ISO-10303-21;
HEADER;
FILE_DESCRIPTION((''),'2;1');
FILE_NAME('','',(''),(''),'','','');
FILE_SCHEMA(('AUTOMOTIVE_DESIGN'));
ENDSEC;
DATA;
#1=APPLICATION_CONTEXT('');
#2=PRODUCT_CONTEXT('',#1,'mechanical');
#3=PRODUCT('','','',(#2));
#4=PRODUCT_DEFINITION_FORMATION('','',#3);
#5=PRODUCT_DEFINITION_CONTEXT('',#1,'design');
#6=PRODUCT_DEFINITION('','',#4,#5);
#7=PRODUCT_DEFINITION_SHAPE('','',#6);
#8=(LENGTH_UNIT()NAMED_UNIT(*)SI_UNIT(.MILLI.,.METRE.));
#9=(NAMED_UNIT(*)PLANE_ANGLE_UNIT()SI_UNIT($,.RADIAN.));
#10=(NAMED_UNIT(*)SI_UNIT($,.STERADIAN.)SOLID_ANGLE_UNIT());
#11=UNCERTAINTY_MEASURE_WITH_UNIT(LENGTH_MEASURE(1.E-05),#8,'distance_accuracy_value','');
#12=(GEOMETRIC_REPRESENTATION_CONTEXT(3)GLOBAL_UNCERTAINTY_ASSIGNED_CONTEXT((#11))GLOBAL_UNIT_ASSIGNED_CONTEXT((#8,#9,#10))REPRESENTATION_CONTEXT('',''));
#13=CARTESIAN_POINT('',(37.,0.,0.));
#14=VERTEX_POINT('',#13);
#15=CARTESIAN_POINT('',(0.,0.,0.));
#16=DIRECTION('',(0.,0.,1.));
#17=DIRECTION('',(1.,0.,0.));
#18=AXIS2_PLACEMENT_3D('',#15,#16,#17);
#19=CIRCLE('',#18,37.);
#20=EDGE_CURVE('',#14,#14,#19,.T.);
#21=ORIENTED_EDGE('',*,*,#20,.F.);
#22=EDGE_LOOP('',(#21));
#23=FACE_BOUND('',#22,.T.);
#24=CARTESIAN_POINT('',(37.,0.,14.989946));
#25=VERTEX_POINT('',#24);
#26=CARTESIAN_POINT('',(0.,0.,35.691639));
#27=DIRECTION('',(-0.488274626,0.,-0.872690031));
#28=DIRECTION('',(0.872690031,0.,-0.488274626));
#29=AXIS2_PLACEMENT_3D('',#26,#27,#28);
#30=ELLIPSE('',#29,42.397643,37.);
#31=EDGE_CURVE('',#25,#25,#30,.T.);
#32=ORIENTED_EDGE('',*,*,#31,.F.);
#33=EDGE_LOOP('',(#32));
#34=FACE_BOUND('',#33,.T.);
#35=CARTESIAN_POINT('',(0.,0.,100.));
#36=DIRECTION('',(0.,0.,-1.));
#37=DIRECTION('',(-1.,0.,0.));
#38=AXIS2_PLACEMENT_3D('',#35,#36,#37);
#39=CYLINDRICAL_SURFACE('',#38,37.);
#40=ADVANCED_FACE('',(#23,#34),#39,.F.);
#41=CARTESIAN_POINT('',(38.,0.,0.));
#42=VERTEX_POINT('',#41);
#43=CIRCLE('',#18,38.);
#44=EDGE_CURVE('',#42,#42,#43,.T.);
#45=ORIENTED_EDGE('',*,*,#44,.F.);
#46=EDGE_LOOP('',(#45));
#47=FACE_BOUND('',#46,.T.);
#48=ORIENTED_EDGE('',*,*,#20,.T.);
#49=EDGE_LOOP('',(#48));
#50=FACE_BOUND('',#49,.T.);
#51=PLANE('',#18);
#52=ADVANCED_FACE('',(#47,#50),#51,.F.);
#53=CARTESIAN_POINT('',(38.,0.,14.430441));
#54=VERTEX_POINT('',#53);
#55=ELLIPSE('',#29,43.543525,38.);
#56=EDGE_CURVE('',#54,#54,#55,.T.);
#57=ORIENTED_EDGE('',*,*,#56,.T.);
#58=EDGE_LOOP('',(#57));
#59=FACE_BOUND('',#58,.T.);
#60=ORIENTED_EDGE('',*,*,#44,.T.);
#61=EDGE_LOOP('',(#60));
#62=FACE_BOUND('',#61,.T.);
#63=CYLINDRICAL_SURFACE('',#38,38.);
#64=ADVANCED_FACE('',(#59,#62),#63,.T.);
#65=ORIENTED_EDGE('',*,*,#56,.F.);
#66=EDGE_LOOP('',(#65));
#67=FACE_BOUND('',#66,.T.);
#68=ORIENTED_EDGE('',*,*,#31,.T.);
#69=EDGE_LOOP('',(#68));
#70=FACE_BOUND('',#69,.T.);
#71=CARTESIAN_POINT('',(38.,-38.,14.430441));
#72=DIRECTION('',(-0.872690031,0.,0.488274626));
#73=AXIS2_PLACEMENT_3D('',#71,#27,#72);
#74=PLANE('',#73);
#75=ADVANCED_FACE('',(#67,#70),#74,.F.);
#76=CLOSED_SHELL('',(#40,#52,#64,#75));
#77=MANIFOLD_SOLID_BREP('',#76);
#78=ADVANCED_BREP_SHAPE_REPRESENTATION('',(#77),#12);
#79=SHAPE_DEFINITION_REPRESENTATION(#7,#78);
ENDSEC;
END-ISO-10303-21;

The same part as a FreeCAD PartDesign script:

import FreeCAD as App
import Part
import Sketcher


def add_polygon(sketch, points):
    """Adds a closed chain of lines whose ends are joined by coincident constraints."""
    first, n = sketch.GeometryCount, len(points)
    for a, b in zip(points, points[1:] + points[:1]):
        sketch.addGeometry(Part.LineSegment(App.Vector(*a, 0), App.Vector(*b, 0)), False)
    for i in range(n):
        sketch.addConstraint(Sketcher.Constraint("Coincident", first + i, 2, first + (i + 1) % n, 1))

doc = App.newDocument("Part")
body = doc.addObject("PartDesign::Body", "Body")

sketch1 = body.newObject("Sketcher::SketchObject", "Sketch")
sketch1.AttachmentSupport = (doc.getObject("XY_Plane"), [""])
sketch1.MapMode = "FlatFace"
sketch1.addGeometry(Part.Circle(App.Vector(0, 0, 0), App.Vector(0, 0, 1), 38), False)
sketch1.addGeometry(Part.Circle(App.Vector(0, 0, 0), App.Vector(0, 0, 1), 37), False)
sketch1.addConstraint(Sketcher.Constraint("Coincident", 0, 3, -1, 1))
sketch1.addConstraint(Sketcher.Constraint("Coincident", 1, 3, -1, 1))
sketch1.addConstraint(Sketcher.Constraint("Diameter", 0, 76.0))
sketch1.addConstraint(Sketcher.Constraint("Diameter", 1, 74.0))
pad1 = body.newObject("PartDesign::Pad", "Pad")
pad1.Profile = sketch1
pad1.Length = 100

sketch2 = body.newObject("Sketcher::SketchObject", "Sketch001")
sketch2.AttachmentSupport = (doc.getObject("XZ_Plane"), [""])
sketch2.MapMode = "FlatFace"
add_polygon(sketch2, [(-38, 56.952838), (-53.95183, 56.952838), (-53.95183, 117.983308), (80.738174, 117.983308), (80.738174, 14.430441), (38, 14.430441)])
sketch2.addConstraint(Sketcher.Constraint("Horizontal", 0))
sketch2.addConstraint(Sketcher.Constraint("Vertical", 1))
sketch2.addConstraint(Sketcher.Constraint("Horizontal", 2))
sketch2.addConstraint(Sketcher.Constraint("Vertical", 3))
sketch2.addConstraint(Sketcher.Constraint("Horizontal", 4))
sketch2.addConstraint(Sketcher.Constraint("DistanceX", -1, 1, 4, 2, 38.0))
sketch2.addConstraint(Sketcher.Constraint("DistanceX", 5, 2, -1, 1, 38.0))
sketch2.addConstraint(Sketcher.Constraint("DistanceX", 0, 2, 0, 1, 15.95183))
sketch2.addConstraint(Sketcher.Constraint("DistanceY", 1, 1, 1, 2, 61.030471))
sketch2.addConstraint(Sketcher.Constraint("Distance", 5, 87.08705))
sketch2.addConstraint(Sketcher.Constraint("DistanceX", 2, 1, 2, 2, 134.690004))
sketch2.addConstraint(Sketcher.Constraint("DistanceY", -1, 1, 1, 2, 117.983308))
pocket1 = body.newObject("PartDesign::Pocket", "Pocket")
pocket1.Profile = sketch2
pocket1.Type = "ThroughAll"
pocket1.Midplane = True

doc.recompute()
